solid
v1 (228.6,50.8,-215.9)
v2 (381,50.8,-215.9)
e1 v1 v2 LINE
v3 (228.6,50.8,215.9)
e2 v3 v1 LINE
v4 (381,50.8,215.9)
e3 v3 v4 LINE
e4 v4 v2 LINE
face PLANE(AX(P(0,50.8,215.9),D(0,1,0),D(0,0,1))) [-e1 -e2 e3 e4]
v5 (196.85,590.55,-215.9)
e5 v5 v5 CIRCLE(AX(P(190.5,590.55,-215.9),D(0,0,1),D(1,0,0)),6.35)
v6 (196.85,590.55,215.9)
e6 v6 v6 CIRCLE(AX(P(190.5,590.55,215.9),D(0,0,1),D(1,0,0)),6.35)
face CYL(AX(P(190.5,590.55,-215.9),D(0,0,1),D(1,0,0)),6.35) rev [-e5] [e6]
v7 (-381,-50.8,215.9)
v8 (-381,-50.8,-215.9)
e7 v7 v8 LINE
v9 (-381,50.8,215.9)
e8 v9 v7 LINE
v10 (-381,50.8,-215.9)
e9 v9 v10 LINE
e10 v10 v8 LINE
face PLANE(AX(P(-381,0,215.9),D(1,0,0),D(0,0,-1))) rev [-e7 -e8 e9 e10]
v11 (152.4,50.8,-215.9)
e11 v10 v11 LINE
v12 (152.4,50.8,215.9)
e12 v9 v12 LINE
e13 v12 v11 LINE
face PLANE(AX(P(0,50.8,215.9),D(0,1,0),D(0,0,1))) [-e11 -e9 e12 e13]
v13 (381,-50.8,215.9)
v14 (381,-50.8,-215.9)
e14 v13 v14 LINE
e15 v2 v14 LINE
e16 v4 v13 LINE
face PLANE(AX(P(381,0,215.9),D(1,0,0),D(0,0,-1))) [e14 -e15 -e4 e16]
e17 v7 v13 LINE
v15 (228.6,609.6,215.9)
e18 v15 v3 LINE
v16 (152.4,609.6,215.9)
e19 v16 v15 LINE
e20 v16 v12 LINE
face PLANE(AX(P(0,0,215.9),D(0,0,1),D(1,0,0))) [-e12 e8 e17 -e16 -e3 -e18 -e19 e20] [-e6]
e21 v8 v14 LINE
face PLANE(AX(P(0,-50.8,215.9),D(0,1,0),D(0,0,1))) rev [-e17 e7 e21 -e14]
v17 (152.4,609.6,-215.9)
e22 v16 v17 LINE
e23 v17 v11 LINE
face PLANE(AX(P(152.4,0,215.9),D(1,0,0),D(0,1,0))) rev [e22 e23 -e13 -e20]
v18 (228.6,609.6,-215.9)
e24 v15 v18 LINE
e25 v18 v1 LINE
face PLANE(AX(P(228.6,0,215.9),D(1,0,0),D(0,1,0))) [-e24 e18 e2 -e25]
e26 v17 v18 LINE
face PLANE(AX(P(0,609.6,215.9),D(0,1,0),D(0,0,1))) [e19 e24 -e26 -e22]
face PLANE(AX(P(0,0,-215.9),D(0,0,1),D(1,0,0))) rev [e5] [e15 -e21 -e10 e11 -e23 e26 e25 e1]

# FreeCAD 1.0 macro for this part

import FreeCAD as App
import Part
import Sketcher

V = App.Vector
Q = App.Units.Quantity


def add_polygon(sketch, points):
    """Adds a closed chain of lines whose ends are joined by coincident constraints."""
    first, n = sketch.GeometryCount, len(points)
    for a, b in zip(points, points[1:] + points[:1]):
        sketch.addGeometry(Part.LineSegment(App.Vector(*a, 0), App.Vector(*b, 0)), False)
    for i in range(n):
        sketch.addConstraint(Sketcher.Constraint("Coincident", first + i, 2, first + (i + 1) % n, 1))

doc = App.newDocument("Part")
body = doc.addObject("PartDesign::Body", "Body")

# Sketch on XY plane
sketch1 = body.newObject("Sketcher::SketchObject", "Sketch")
sketch1.AttachmentSupport = (doc.getObject("XY_Plane"), [""])
sketch1.MapMode = "FlatFace"
add_polygon(sketch1, [(-381, 51), (-381, -51), (381, -51), (381, 51), (229, 51), (229, 610), (152, 610), (152, 51)])  # lines 0-7
sketch1.addConstraint([
    Sketcher.Constraint("Vertical", 0),
    Sketcher.Constraint("Horizontal", 1),
    Sketcher.Constraint("Vertical", 2),
    Sketcher.Constraint("Horizontal", 3),
    Sketcher.Constraint("Vertical", 4),
    Sketcher.Constraint("Horizontal", 5),
    Sketcher.Constraint("Vertical", 6),
    Sketcher.Constraint("Horizontal", 7),
    Sketcher.Constraint("Symmetric", 0, 2, 2, 2, -1, 1),
    Sketcher.Constraint("Horizontal", 3, 2, 6, 2),
    Sketcher.Constraint("DistanceX", 1, 1, 1, 2, Q("30 in")),
    Sketcher.Constraint("DistanceX", 3, 2, 3, 1, Q("6 in")),
    Sketcher.Constraint("DistanceX", 5, 2, 5, 1, Q("3 in")),
    Sketcher.Constraint("DistanceY", 0, 2, 0, 1, Q("4 in")),
    Sketcher.Constraint("DistanceY", 4, 1, 4, 2, Q("22 in")),
])
pad1 = body.newObject("PartDesign::Pad", "Pad")
pad1.Profile = sketch1
pad1.Length = Q("17 in")
pad1.Midplane = True

# Sketch on XY plane
sketch2 = body.newObject("Sketcher::SketchObject", "Sketch001")
sketch2.AttachmentSupport = (doc.getObject("XY_Plane"), [""])
sketch2.MapMode = "FlatFace"
sketch2.AttachmentOffset = App.Placement(V(0, 0, 8.5 * 25.4), App.Rotation())
sketch2.addGeometry(Part.Circle(V(190, 591, 0), V(0, 0, 1), 6), False)
sketch2.addConstraint([
    Sketcher.Constraint("Diameter", 0, Q("0.5 in")),
    Sketcher.Constraint("DistanceX", -1, 1, 0, 3, Q("7.5 in")),
    Sketcher.Constraint("DistanceY", -1, 1, 0, 3, Q("23.25 in")),
])
pocket1 = body.newObject("PartDesign::Pocket", "Pocket")
pocket1.Profile = sketch2
pocket1.Type = "ThroughAll"

doc.recompute()
